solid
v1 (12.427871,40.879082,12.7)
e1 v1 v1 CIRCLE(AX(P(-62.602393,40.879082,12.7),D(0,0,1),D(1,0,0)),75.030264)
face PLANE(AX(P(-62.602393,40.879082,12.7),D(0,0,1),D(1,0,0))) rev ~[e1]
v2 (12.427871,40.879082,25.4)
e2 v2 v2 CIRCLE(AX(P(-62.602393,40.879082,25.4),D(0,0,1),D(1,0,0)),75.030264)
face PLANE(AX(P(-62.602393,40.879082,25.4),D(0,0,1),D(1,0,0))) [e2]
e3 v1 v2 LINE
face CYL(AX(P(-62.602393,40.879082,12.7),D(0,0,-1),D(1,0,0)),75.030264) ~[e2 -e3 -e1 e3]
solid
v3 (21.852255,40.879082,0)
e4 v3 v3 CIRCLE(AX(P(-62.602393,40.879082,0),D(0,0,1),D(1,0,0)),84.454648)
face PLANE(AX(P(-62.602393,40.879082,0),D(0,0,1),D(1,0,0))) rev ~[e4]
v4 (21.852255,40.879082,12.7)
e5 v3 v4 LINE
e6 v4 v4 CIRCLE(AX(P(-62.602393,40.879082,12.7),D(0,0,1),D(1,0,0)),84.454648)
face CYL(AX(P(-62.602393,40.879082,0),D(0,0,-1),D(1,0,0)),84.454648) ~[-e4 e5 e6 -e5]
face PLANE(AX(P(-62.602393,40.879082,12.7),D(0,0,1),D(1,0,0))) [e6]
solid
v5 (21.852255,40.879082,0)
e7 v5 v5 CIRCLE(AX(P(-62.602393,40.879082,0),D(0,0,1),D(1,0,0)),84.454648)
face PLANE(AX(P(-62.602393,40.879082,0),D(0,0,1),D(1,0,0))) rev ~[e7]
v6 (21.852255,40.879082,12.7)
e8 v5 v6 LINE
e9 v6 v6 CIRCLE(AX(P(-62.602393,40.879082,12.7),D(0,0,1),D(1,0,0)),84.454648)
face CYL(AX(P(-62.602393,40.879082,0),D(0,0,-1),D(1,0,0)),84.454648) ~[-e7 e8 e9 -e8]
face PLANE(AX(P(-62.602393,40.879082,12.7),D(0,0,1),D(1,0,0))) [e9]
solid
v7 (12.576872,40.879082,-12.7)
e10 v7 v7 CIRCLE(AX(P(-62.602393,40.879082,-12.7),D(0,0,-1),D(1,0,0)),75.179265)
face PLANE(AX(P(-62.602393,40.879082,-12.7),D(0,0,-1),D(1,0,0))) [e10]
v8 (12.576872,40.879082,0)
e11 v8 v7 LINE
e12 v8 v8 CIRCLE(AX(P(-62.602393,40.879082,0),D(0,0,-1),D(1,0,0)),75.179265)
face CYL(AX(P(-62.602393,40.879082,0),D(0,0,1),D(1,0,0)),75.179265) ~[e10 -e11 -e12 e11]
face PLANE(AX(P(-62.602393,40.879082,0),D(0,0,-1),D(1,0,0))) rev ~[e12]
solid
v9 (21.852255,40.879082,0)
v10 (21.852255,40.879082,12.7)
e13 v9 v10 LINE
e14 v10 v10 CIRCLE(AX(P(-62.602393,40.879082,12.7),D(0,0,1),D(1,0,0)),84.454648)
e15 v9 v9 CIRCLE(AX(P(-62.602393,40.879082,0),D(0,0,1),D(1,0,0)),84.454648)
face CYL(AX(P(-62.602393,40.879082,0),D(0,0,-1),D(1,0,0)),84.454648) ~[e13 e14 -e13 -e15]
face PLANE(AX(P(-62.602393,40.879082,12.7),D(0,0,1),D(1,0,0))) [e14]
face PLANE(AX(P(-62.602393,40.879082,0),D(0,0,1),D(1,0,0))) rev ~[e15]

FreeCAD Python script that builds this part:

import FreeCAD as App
import Part
import Sketcher
from FreeCAD import Vector
Q = App.Units.Quantity

doc = App.newDocument("Part")
body = doc.addObject("PartDesign::Body", "Body")

# Sketch on XY plane
sketch1 = body.newObject("Sketcher::SketchObject", "Sketch")
sketch1.AttachmentSupport = (doc.getObject("XY_Plane"), [""])
sketch1.MapMode = "FlatFace"
sketch1.addGeometry(Part.Circle(Vector(-63, 41, 0), Vector(0, 0, 1), 84), False)
sketch1.addConstraint([
    Sketcher.Constraint("Diameter", 0, Q("168.909296 mm")),
    Sketcher.Constraint("DistanceY", -1, 1, 0, 3, Q("40.879082 mm")),
    Sketcher.Constraint("DistanceX", 0, 3, -1, 1, Q("62.602393 mm")),
])
pad1 = body.newObject("PartDesign::Pad", "Pad")
pad1.Profile = sketch1
pad1.Length = Q("0.5 in")
body2 = doc.addObject("PartDesign::Body", "Body001")

# Sketch on XY plane
sketch2 = body2.newObject("Sketcher::SketchObject", "Sketch001")
sketch2.AttachmentSupport = (doc.getObject("XY_Plane001"), [""])
sketch2.MapMode = "FlatFace"
sketch2.addGeometry(Part.Circle(Vector(-63, 41, 0), Vector(0, 0, 1), 84), False)
sketch2.addConstraint([
    Sketcher.Constraint("Diameter", 0, Q("168.909296 mm")),
    Sketcher.Constraint("DistanceY", -1, 1, 0, 3, Q("40.879082 mm")),
    Sketcher.Constraint("DistanceX", 0, 3, -1, 1, Q("62.602393 mm")),
])
pad2 = body2.newObject("PartDesign::Pad", "Pad001")
pad2.Profile = sketch2
pad2.Length = Q("0.5 in")
body3 = doc.addObject("PartDesign::Body", "Body002")

# Sketch on XY plane
sketch3 = body3.newObject("Sketcher::SketchObject", "Sketch002")
sketch3.AttachmentSupport = (doc.getObject("XY_Plane002"), [""])
sketch3.MapMode = "FlatFace"
sketch3.addGeometry(Part.Circle(Vector(-63, 41, 0), Vector(0, 0, 1), 84), False)
sketch3.addConstraint([
    Sketcher.Constraint("Diameter", 0, Q("168.909296 mm")),
    Sketcher.Constraint("DistanceY", -1, 1, 0, 3, Q("40.879082 mm")),
    Sketcher.Constraint("DistanceX", 0, 3, -1, 1, Q("62.602393 mm")),
])
pad3 = body3.newObject("PartDesign::Pad", "Pad002")
pad3.Profile = sketch3
pad3.Length = Q("0.5 in")
body4 = doc.addObject("PartDesign::Body", "Body003")

# Sketch on XY plane
sketch4 = body4.newObject("Sketcher::SketchObject", "Sketch003")
sketch4.AttachmentSupport = (doc.getObject("XY_Plane003"), [""])
sketch4.MapMode = "FlatFace"
sketch4.addGeometry(Part.Circle(Vector(-63, 41, 0), Vector(0, 0, 1), 75), False)
sketch4.addConstraint([
    Sketcher.Constraint("Diameter", 0, Q("150.35853 mm")),
    Sketcher.Constraint("DistanceY", -1, 1, 0, 3, Q("40.879082 mm")),
    Sketcher.Constraint("DistanceX", 0, 3, -1, 1, Q("62.602393 mm")),
])
pad4 = body4.newObject("PartDesign::Pad", "Pad003")
pad4.Profile = sketch4
pad4.Length = Q("0.5 in")
pad4.Reversed = True
body5 = doc.addObject("PartDesign::Body", "Body004")

# Sketch on XY plane
sketch5 = body5.newObject("Sketcher::SketchObject", "Sketch004")
sketch5.AttachmentSupport = (doc.getObject("XY_Plane004"), [""])
sketch5.MapMode = "FlatFace"
sketch5.AttachmentOffset = App.Placement(Vector(0, 0, 0.5 * 25.4), App.Rotation())
sketch5.addGeometry(Part.Circle(Vector(-63, 41, 0), Vector(0, 0, 1), 75), False)
sketch5.addConstraint([
    Sketcher.Constraint("Diameter", 0, Q("150.060529 mm")),
    Sketcher.Constraint("DistanceY", -1, 1, 0, 3, Q("40.879082 mm")),
    Sketcher.Constraint("DistanceX", 0, 3, -1, 1, Q("62.602393 mm")),
])
pad5 = body5.newObject("PartDesign::Pad", "Pad004")
pad5.Profile = sketch5
pad5.Length = Q("0.5 in")

doc.recompute()
